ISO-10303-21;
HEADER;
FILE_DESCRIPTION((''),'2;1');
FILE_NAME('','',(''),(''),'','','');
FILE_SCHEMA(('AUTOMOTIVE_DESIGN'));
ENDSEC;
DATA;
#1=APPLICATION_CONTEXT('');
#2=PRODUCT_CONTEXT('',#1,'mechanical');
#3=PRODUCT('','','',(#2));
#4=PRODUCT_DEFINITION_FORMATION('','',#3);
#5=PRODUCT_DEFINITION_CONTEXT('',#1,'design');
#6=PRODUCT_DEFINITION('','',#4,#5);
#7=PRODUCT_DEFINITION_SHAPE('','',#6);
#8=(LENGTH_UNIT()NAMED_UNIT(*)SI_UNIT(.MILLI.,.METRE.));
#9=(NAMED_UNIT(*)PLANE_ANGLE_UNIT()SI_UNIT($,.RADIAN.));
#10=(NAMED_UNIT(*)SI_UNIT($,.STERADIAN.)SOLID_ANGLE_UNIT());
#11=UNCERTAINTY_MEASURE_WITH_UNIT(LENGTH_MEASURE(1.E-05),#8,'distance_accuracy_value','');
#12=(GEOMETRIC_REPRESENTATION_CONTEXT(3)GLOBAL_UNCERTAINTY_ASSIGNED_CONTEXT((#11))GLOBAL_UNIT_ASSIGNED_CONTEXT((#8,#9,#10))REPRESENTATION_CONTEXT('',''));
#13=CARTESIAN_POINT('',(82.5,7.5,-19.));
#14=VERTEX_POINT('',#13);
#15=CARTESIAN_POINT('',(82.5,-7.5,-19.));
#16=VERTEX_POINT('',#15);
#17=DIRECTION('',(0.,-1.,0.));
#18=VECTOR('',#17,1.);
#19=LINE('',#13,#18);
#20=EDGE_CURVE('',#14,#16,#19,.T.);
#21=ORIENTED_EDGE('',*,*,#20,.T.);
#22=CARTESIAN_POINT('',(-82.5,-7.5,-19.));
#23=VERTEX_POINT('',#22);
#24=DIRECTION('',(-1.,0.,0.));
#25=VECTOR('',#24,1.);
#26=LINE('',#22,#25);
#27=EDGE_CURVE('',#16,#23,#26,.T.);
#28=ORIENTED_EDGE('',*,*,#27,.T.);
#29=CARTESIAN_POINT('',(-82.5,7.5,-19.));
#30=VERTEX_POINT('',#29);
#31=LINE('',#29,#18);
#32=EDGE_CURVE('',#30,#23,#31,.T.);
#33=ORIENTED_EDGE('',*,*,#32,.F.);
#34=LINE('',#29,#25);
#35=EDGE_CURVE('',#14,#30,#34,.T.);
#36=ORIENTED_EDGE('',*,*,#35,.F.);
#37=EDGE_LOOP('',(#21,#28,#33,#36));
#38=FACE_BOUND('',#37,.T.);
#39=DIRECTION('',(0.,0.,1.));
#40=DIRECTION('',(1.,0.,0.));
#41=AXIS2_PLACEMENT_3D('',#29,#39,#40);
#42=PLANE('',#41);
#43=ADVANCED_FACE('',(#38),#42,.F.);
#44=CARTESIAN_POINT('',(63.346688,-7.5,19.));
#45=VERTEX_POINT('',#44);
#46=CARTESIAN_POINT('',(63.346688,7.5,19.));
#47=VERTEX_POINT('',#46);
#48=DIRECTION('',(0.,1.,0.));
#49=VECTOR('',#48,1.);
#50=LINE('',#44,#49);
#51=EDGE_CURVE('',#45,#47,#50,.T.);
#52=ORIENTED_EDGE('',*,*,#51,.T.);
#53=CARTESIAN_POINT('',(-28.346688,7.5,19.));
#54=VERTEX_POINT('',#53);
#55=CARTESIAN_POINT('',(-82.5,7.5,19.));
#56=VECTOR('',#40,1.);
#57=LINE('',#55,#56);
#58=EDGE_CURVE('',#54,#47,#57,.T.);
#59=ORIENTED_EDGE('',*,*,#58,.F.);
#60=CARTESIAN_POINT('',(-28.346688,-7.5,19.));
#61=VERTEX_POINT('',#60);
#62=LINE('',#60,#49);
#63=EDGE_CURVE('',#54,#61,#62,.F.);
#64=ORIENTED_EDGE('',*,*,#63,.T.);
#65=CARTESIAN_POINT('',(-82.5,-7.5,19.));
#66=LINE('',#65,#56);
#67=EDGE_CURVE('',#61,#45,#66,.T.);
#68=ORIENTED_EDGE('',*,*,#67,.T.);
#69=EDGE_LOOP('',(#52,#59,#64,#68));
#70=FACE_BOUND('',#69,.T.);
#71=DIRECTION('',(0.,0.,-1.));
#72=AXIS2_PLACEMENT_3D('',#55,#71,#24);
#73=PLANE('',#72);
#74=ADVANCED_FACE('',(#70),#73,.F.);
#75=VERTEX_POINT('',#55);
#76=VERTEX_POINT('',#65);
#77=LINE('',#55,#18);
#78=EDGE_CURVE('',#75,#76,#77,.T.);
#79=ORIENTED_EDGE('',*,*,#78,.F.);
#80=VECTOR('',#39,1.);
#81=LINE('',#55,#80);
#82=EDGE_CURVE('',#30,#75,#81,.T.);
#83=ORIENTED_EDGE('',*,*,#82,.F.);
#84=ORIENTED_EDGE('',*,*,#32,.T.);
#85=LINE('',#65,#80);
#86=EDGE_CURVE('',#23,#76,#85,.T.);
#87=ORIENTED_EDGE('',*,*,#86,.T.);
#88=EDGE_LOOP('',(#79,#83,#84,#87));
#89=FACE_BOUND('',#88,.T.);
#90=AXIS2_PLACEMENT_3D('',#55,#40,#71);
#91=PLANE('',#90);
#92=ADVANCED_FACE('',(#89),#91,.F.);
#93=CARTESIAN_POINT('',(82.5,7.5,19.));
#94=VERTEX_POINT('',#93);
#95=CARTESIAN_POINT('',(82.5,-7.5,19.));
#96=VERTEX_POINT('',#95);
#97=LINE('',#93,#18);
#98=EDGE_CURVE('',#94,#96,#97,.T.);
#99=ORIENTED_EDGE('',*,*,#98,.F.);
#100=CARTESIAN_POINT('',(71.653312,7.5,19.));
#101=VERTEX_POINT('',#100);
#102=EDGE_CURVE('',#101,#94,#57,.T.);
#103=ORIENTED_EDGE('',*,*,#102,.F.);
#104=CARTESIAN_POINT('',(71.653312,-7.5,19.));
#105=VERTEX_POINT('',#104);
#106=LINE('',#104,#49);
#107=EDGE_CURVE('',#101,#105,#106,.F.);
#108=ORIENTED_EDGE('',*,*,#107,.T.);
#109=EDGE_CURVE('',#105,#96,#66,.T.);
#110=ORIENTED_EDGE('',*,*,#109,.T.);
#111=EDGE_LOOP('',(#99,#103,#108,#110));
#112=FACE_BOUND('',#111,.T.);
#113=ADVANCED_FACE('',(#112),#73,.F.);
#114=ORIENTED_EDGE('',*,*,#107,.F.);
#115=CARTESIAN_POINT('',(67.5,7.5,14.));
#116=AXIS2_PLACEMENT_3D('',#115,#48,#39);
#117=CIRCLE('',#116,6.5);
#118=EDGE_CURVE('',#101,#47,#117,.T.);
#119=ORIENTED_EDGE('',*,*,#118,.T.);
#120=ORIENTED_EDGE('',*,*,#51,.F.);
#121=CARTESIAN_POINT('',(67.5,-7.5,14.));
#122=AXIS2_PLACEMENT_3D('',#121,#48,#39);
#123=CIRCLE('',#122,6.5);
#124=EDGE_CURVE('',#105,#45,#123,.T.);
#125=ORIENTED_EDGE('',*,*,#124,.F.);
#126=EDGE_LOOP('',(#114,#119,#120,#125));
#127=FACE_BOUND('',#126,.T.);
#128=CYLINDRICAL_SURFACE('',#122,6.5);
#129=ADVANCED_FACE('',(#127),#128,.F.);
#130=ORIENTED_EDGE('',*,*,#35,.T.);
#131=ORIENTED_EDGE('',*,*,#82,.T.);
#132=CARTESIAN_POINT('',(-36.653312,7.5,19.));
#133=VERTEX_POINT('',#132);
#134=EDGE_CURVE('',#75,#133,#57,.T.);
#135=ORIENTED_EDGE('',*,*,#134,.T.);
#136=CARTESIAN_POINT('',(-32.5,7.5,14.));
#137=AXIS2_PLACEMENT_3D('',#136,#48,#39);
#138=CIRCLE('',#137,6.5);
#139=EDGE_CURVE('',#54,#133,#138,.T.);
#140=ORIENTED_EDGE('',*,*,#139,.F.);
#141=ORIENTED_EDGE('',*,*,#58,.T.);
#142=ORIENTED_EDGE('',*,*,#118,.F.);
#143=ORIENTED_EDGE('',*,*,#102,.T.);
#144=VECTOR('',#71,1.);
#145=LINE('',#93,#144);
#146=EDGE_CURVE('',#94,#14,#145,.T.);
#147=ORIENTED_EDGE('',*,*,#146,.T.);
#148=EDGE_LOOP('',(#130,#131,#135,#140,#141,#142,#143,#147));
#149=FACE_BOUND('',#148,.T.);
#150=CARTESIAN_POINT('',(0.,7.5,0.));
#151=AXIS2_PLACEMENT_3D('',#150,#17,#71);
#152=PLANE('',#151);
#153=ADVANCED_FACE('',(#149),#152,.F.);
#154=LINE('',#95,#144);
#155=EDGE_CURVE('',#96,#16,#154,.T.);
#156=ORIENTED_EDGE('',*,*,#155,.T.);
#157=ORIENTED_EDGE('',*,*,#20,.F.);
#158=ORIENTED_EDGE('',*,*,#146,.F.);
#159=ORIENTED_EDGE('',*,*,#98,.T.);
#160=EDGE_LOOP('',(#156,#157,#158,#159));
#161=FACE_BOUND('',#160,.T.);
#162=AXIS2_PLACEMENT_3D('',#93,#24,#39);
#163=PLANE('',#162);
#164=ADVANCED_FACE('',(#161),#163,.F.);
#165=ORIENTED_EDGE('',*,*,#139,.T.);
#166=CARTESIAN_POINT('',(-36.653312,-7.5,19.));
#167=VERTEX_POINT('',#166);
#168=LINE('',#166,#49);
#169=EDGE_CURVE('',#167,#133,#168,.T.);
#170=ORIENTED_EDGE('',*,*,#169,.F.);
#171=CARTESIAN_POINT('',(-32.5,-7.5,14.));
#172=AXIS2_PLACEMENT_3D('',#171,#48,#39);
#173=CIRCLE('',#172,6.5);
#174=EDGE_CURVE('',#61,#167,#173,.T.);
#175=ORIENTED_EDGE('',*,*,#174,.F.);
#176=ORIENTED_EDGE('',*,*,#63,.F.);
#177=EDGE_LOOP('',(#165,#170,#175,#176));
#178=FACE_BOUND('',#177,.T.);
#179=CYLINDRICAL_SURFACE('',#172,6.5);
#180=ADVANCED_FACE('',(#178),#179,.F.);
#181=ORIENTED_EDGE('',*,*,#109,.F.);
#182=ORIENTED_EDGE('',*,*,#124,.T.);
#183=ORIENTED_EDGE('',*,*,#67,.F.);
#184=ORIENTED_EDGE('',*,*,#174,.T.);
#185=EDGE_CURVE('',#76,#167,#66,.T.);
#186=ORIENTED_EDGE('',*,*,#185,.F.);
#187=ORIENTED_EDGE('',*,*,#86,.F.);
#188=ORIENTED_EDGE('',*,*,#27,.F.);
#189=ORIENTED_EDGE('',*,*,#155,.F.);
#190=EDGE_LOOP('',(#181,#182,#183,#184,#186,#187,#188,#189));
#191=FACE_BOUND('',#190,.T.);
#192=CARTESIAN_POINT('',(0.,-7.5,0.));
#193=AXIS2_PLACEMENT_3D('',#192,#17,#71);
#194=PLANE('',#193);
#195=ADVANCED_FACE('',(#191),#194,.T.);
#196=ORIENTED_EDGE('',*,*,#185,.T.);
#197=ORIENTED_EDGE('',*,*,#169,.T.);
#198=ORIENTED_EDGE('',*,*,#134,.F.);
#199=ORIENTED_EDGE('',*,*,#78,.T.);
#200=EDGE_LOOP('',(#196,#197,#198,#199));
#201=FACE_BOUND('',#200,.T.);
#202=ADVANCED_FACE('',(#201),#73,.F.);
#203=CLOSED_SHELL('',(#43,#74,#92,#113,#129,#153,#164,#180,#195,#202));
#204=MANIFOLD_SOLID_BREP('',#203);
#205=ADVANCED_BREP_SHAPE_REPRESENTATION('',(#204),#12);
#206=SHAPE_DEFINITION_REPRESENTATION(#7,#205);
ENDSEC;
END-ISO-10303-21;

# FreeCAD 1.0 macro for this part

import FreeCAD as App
import Part
import Sketcher

V = App.Vector
Q = App.Units.Quantity

doc = App.newDocument("Part")
body = doc.addObject("PartDesign::Body", "Body")

# Sketch on XZ plane
sketch1 = body.newObject("Sketcher::SketchObject", "Sketch")
sketch1.AttachmentSupport = (doc.getObject("XZ_Plane"), [""])
sketch1.MapMode = "FlatFace"
sketch1.addGeometry([
    Part.LineSegment(V(-82, -19, 0), V(-82, 19, 0)),
    Part.LineSegment(V(-82, 19, 0), V(82, 19, 0)),
    Part.LineSegment(V(82, 19, 0), V(82, -19, 0)),
    Part.LineSegment(V(82, -19, 0), V(-82, -19, 0)),
], False)
sketch1.addConstraint([
    Sketcher.Constraint("Coincident", 0, 2, 1, 1),
    Sketcher.Constraint("Coincident", 1, 2, 2, 1),
    Sketcher.Constraint("Coincident", 2, 2, 3, 1),
    Sketcher.Constraint("Coincident", 3, 2, 0, 1),
    Sketcher.Constraint("Vertical", 0),
    Sketcher.Constraint("Horizontal", 1),
    Sketcher.Constraint("Vertical", 2),
    Sketcher.Constraint("Horizontal", 3),
    Sketcher.Constraint("Symmetric", 0, 2, 2, 2, -1, 1),
    Sketcher.Constraint("DistanceX", 1, 1, 1, 2, Q("165 mm")),
    Sketcher.Constraint("DistanceY", 0, 1, 0, 2, Q("38 mm")),
])
pad1 = body.newObject("PartDesign::Pad", "Pad")
pad1.Profile = sketch1
pad1.Length = 15
pad1.Midplane = True

# Sketch on XZ plane
sketch2 = body.newObject("Sketcher::SketchObject", "Sketch001")
sketch2.AttachmentSupport = (doc.getObject("XZ_Plane"), [""])
sketch2.MapMode = "FlatFace"
sketch2.AttachmentOffset = App.Placement(V(0, 0, -7.5), App.Rotation())
sketch2.addGeometry([
    Part.Circle(V(68, 14, 0), V(0, 0, 1), 6),
    Part.Circle(V(-32, 14, 0), V(0, 0, 1), 6),
], False)
sketch2.addConstraint([
    Sketcher.Constraint("Equal", 0, 1),
    Sketcher.Constraint("Horizontal", 0, 3, 1, 3),
    Sketcher.Constraint("Diameter", 0, Q("13 mm")),
    Sketcher.Constraint("DistanceY", -1, 1, 0, 3, Q("14 mm")),
    Sketcher.Constraint("DistanceX", 1, 3, 0, 3, Q("100 mm")),
    Sketcher.Constraint("DistanceX", -1, 1, 0, 3, Q("67.5 mm")),
])
pocket1 = body.newObject("PartDesign::Pocket", "Pocket")
pocket1.Profile = sketch2
pocket1.Type = "ThroughAll"
pocket1.Reversed = True

doc.recompute()
